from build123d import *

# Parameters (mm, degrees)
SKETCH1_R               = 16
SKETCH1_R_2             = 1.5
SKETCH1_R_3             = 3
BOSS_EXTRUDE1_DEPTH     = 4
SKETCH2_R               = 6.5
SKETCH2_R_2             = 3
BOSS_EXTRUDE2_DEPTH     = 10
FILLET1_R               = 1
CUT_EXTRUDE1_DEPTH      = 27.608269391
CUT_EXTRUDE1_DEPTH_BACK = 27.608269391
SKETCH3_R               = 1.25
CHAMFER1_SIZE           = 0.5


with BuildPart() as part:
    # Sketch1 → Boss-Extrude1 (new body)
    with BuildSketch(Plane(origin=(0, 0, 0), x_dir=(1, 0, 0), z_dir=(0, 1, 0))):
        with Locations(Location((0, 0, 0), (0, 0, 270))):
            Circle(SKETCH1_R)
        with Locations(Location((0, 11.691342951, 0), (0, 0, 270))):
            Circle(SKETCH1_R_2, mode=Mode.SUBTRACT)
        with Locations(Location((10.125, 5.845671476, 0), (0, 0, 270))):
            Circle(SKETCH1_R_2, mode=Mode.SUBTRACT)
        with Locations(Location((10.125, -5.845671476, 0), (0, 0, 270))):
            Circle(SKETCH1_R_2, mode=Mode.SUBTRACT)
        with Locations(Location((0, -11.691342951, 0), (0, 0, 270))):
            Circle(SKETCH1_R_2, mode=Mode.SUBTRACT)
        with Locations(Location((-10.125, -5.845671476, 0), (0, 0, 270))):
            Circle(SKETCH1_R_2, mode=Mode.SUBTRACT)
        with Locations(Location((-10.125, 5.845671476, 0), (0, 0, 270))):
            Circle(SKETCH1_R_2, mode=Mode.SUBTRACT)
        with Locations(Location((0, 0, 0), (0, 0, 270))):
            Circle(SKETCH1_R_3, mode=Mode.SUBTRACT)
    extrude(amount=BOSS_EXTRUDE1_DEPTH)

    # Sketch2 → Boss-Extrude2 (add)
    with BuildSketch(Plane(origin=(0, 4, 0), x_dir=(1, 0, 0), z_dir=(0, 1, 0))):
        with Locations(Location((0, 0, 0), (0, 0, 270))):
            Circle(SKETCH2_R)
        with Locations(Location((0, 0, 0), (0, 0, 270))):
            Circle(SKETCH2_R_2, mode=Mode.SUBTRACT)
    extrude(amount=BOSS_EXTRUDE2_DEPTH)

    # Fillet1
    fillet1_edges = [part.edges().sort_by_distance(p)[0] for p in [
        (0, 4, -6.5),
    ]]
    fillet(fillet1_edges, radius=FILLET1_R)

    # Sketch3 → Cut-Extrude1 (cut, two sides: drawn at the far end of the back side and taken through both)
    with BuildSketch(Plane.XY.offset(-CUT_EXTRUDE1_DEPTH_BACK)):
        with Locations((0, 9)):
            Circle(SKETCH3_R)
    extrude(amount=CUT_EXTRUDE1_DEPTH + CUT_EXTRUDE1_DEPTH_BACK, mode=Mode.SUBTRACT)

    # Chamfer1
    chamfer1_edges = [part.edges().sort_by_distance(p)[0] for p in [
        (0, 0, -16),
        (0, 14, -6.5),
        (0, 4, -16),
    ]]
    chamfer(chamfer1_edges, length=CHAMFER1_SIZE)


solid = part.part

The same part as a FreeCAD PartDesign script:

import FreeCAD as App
import Part
import Sketcher


def edges_at(feature, points):
    """Names of the edges that pass closest to the given points."""
    edges = feature.Shape.Edges
    near = lambda p: min(range(len(edges)), key=lambda i: edges[i].distToShape(Part.Vertex(*p))[0])
    return sorted({f"Edge{near(p) + 1}" for p in points})

doc = App.newDocument("Part")
body = doc.addObject("PartDesign::Body", "Body")

sketch1 = doc.addObject("Sketcher::SketchObject", "Sketch")
body.addObject(sketch1)
sketch1.AttachmentSupport = (doc.XZ_Plane, [""])
sketch1.MapMode = "FlatFace"
sketch1.addGeometry([
    Part.Circle(App.Vector(0, 0, 0), App.Vector(0, 0, 1), 16),
    Part.Circle(App.Vector(-10.1, -5.8, 0), App.Vector(0, 0, 1), 1.5),
    Part.Circle(App.Vector(0, -11.7, 0), App.Vector(0, 0, 1), 1.5),
    Part.Circle(App.Vector(-10.1, 5.8, 0), App.Vector(0, 0, 1), 1.5),
    Part.Circle(App.Vector(10.1, -5.8, 0), App.Vector(0, 0, 1), 1.5),
    Part.Circle(App.Vector(0, 0, 0), App.Vector(0, 0, 1), 3),
    Part.Circle(App.Vector(0, 11.7, 0), App.Vector(0, 0, 1), 1.5),
    Part.Circle(App.Vector(10.1, 5.8, 0), App.Vector(0, 0, 1), 1.5),
], False)
sketch1.addConstraint([
    Sketcher.Constraint("Coincident", 0, 3, -1, 1),
    Sketcher.Constraint("Coincident", 5, 3, -1, 1),
    Sketcher.Constraint("Equal", 1, 2),
    Sketcher.Constraint("Equal", 2, 3),
    Sketcher.Constraint("Equal", 3, 4),
    Sketcher.Constraint("Equal", 4, 6),
    Sketcher.Constraint("Equal", 6, 7),
    Sketcher.Constraint("Symmetric", 3, 3, 4, 3, -1, 1),
    Sketcher.Constraint("Symmetric", 2, 3, 6, 3, -1, 1),
    Sketcher.Constraint("Symmetric", 1, 3, 7, 3, -1, 1),
    Sketcher.Constraint("Symmetric", 1, 3, 4, 3, -2),
    Sketcher.Constraint("PointOnObject", 2, 3, -2),
    Sketcher.Constraint("Diameter", 0, 32.0),
    Sketcher.Constraint("Diameter", 1, 3.0),
    Sketcher.Constraint("Diameter", 5, 6.0),
    Sketcher.Constraint("DistanceX", 1, 3, 4, 3, 20.25),
    Sketcher.Constraint("DistanceY", 1, 3, -1, 1, 5.845671),
    Sketcher.Constraint("DistanceY", 2, 3, 1, 3, 5.845671),
])
pad1 = doc.addObject("PartDesign::Pad", "Pad")
body.addObject(pad1)
pad1.Profile = sketch1
pad1.Length = 4
pad1.Reversed = True

sketch2 = doc.addObject("Sketcher::SketchObject", "Sketch001")
body.addObject(sketch2)
sketch2.AttachmentSupport = (doc.XZ_Plane, [""])
sketch2.MapMode = "FlatFace"
sketch2.AttachmentOffset = App.Placement(App.Vector(0, 0, -4), App.Rotation())
sketch2.addGeometry([
    Part.Circle(App.Vector(0, 0, 0), App.Vector(0, 0, 1), 6.5),
    Part.Circle(App.Vector(0, 0, 0), App.Vector(0, 0, 1), 3),
], False)
sketch2.addConstraint([
    Sketcher.Constraint("Coincident", 0, 3, -1, 1),
    Sketcher.Constraint("Coincident", 1, 3, -1, 1),
    Sketcher.Constraint("Diameter", 0, 13.0),
    Sketcher.Constraint("Diameter", 1, 6.0),
])
pad2 = doc.addObject("PartDesign::Pad", "Pad001")
body.addObject(pad2)
pad2.Profile = sketch2
pad2.Length = 10
pad2.Reversed = True
doc.recompute()

fillet = doc.addObject("PartDesign::Fillet", "Fillet")
body.addObject(fillet)
fillet.Base = (pad2, edges_at(pad2, [(0, 4, -6.5)]))
fillet.Radius = 1

sketch3 = doc.addObject("Sketcher::SketchObject", "Sketch002")
body.addObject(sketch3)
sketch3.AttachmentSupport = (doc.XY_Plane, [""])
sketch3.MapMode = "FlatFace"
sketch3.addGeometry(Part.Circle(App.Vector(0, 9, 0), App.Vector(0, 0, 1), 1.2), False)
sketch3.addConstraint([
    Sketcher.Constraint("PointOnObject", 0, 3, -2),
    Sketcher.Constraint("Diameter", 0, 2.5),
    Sketcher.Constraint("DistanceY", -1, 1, 0, 3, 9.0),
])
pocket1 = doc.addObject("PartDesign::Pocket", "Pocket")
body.addObject(pocket1)
pocket1.Profile = sketch3
pocket1.Type = "ThroughAll"
pocket1.Midplane = True
doc.recompute()

chamfer = doc.addObject("PartDesign::Chamfer", "Chamfer")
body.addObject(chamfer)
chamfer.Base = (pocket1, edges_at(pocket1, [(0, 0, -16), (0, 14, -6.5), (0, 4, -16)]))
chamfer.Size = 0.5

doc.recompute()
